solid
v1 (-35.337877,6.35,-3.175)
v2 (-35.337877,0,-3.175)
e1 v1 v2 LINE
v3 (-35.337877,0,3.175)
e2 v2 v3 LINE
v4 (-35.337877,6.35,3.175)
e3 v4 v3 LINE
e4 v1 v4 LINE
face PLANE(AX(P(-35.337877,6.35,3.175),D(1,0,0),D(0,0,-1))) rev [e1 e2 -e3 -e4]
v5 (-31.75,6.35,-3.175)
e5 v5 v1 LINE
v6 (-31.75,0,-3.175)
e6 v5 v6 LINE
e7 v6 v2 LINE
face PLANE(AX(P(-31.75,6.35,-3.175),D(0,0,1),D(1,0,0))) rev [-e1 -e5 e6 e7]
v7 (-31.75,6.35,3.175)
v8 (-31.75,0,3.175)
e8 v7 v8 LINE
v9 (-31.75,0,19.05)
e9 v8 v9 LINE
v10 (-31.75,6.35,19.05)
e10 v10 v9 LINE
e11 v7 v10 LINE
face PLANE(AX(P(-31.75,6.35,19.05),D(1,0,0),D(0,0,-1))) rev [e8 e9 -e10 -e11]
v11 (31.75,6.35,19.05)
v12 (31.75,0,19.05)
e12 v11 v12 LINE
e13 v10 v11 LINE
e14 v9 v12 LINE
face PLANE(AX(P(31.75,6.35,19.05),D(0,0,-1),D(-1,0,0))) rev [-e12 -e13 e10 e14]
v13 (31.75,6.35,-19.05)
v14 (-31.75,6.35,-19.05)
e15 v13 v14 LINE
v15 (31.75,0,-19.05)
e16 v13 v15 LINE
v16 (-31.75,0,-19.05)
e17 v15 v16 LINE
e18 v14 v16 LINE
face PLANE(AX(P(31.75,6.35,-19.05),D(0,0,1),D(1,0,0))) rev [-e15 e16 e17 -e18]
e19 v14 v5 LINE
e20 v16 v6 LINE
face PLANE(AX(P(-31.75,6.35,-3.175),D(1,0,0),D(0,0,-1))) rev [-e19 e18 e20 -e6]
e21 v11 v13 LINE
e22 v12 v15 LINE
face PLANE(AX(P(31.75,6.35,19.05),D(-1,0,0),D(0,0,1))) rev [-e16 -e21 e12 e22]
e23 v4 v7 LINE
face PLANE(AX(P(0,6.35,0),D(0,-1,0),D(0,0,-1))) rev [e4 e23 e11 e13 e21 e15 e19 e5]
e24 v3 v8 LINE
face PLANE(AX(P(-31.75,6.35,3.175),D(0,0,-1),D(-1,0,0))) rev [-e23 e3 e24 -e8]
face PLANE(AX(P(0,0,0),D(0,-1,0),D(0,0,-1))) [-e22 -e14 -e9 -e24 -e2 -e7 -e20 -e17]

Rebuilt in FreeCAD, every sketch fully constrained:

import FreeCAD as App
import Part
import Sketcher
Q = App.Units.Quantity

doc = App.newDocument("Part")
body = doc.addObject("PartDesign::Body", "Body")

# Sketch on XZ plane
sketch1 = body.newObject("Sketcher::SketchObject", "Sketch")
sketch1.AttachmentSupport = (doc.getObject("XZ_Plane"), [""])
sketch1.MapMode = "FlatFace"
sketch1.addGeometry(Part.LineSegment(App.Vector(-31.8, -19.1, 0), App.Vector(-31.8, -3.2, 0)), False)
sketch1.addGeometry(Part.LineSegment(App.Vector(-31.8, -3.2, 0), App.Vector(-35.3, -3.2, 0)), False)
sketch1.addGeometry(Part.LineSegment(App.Vector(-35.3, -3.2, 0), App.Vector(-35.3, 3.2, 0)), False)
sketch1.addGeometry(Part.LineSegment(App.Vector(-35.3, 3.2, 0), App.Vector(-31.8, 3.2, 0)), False)
sketch1.addGeometry(Part.LineSegment(App.Vector(-31.8, 3.2, 0), App.Vector(-31.8, 19.1, 0)), False)
sketch1.addGeometry(Part.LineSegment(App.Vector(-31.8, 19.1, 0), App.Vector(31.8, 19.1, 0)), False)
sketch1.addGeometry(Part.LineSegment(App.Vector(31.8, 19.1, 0), App.Vector(31.8, -19.1, 0)), False)
sketch1.addGeometry(Part.LineSegment(App.Vector(31.8, -19.1, 0), App.Vector(-31.8, -19.1, 0)), False)
sketch1.addConstraint(Sketcher.Constraint("Coincident", 0, 2, 1, 1))
sketch1.addConstraint(Sketcher.Constraint("Coincident", 1, 2, 2, 1))
sketch1.addConstraint(Sketcher.Constraint("Coincident", 2, 2, 3, 1))
sketch1.addConstraint(Sketcher.Constraint("Coincident", 3, 2, 4, 1))
sketch1.addConstraint(Sketcher.Constraint("Coincident", 4, 2, 5, 1))
sketch1.addConstraint(Sketcher.Constraint("Coincident", 5, 2, 6, 1))
sketch1.addConstraint(Sketcher.Constraint("Coincident", 6, 2, 7, 1))
sketch1.addConstraint(Sketcher.Constraint("Coincident", 7, 2, 0, 1))
sketch1.addConstraint(Sketcher.Constraint("Vertical", 0))
sketch1.addConstraint(Sketcher.Constraint("Horizontal", 1))
sketch1.addConstraint(Sketcher.Constraint("Vertical", 2))
sketch1.addConstraint(Sketcher.Constraint("Horizontal", 3))
sketch1.addConstraint(Sketcher.Constraint("Vertical", 4))
sketch1.addConstraint(Sketcher.Constraint("Horizontal", 5))
sketch1.addConstraint(Sketcher.Constraint("Vertical", 6))
sketch1.addConstraint(Sketcher.Constraint("Horizontal", 7))
sketch1.addConstraint(Sketcher.Constraint("Symmetric", 4, 2, 6, 2, -1, 1))
sketch1.addConstraint(Sketcher.Constraint("Symmetric", 0, 2, 3, 2, -1))
sketch1.addConstraint(Sketcher.Constraint("DistanceX", 5, 1, 5, 2, Q("2.5 in")))
sketch1.addConstraint(Sketcher.Constraint("DistanceY", 6, 2, 6, 1, Q("1.5 in")))
sketch1.addConstraint(Sketcher.Constraint("DistanceY", 2, 1, 2, 2, Q("0.25 in")))
sketch1.addConstraint(Sketcher.Constraint("DistanceX", 1, 2, 1, 1, 3.587877))
pad1 = body.newObject("PartDesign::Pad", "Pad")
pad1.Profile = sketch1
pad1.Length = Q("0.25 in")
pad1.Reversed = True

doc.recompute()
